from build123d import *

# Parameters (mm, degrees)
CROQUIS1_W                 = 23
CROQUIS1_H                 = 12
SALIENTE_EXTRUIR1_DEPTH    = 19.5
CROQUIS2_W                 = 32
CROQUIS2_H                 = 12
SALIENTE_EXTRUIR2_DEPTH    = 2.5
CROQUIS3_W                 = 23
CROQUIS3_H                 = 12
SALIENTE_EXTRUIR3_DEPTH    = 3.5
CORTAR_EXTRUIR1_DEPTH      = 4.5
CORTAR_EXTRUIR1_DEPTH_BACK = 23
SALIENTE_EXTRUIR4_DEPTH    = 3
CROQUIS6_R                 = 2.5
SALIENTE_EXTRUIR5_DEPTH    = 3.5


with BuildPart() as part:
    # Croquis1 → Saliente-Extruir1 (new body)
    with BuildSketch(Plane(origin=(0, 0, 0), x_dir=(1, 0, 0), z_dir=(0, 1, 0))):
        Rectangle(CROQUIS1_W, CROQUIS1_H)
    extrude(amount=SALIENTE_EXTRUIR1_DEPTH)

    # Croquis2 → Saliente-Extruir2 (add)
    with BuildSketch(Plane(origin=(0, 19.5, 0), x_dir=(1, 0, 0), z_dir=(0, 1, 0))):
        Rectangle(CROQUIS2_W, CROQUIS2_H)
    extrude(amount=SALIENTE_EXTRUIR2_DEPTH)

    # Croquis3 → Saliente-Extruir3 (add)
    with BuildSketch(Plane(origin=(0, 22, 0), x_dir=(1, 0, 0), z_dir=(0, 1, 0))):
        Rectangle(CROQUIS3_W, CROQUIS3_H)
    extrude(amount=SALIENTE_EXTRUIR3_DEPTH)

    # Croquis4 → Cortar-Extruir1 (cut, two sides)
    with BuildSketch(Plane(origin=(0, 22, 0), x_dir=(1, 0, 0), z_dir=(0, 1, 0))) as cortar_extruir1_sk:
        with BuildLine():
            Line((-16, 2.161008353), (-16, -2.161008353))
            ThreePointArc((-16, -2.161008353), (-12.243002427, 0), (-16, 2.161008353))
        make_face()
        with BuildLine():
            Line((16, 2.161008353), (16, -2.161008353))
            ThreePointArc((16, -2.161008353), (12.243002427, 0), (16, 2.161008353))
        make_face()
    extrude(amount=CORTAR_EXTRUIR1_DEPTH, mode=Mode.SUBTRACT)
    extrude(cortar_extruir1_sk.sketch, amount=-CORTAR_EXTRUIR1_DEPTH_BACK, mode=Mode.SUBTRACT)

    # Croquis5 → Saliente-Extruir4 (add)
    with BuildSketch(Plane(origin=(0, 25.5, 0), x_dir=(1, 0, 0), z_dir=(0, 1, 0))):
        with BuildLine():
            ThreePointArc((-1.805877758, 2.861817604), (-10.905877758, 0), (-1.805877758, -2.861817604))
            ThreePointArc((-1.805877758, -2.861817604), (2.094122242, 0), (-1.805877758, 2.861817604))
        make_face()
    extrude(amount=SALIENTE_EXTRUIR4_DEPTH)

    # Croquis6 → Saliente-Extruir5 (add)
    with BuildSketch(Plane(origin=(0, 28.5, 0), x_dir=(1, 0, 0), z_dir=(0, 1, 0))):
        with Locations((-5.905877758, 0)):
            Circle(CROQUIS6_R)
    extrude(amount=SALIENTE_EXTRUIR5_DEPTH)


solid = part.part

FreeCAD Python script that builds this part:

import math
import FreeCAD as App
import Part
import Sketcher
from FreeCAD import Vector


def add_polygon(sketch, points):
    """Adds a closed chain of lines whose ends are joined by coincident constraints."""
    first, n = sketch.GeometryCount, len(points)
    for a, b in zip(points, points[1:] + points[:1]):
        sketch.addGeometry(Part.LineSegment(App.Vector(*a, 0), App.Vector(*b, 0)), False)
    for i in range(n):
        sketch.addConstraint(Sketcher.Constraint("Coincident", first + i, 2, first + (i + 1) % n, 1))

doc = App.newDocument("Part")
body = doc.addObject("PartDesign::Body", "Body")

sketch1 = body.newObject("Sketcher::SketchObject", "Sketch")
sketch1.AttachmentSupport = (doc.getObject("XZ_Plane"), [""])
sketch1.MapMode = "FlatFace"
add_polygon(sketch1, [(-12, -6), (-12, 6), (12, 6), (12, -6)])
sketch1.addConstraint([
    Sketcher.Constraint("Vertical", 0),
    Sketcher.Constraint("Horizontal", 1),
    Sketcher.Constraint("Vertical", 2),
    Sketcher.Constraint("Horizontal", 3),
    Sketcher.Constraint("Symmetric", 0, 2, 2, 2, -1, 1),
    Sketcher.Constraint("DistanceX", 1, 1, 1, 2, 23.0),
    Sketcher.Constraint("DistanceY", 0, 1, 0, 2, 12.0),
])
pad1 = body.newObject("PartDesign::Pad", "Pad")
pad1.Profile = sketch1
pad1.Length = 19.5
pad1.Reversed = True

sketch2 = body.newObject("Sketcher::SketchObject", "Sketch001")
sketch2.AttachmentSupport = (doc.getObject("XZ_Plane"), [""])
sketch2.MapMode = "FlatFace"
sketch2.AttachmentOffset = App.Placement(Vector(0, 0, -19.5), App.Rotation())
add_polygon(sketch2, [(-16, -6), (-16, 6), (16, 6), (16, -6)])
sketch2.addConstraint([
    Sketcher.Constraint("Vertical", 0),
    Sketcher.Constraint("Horizontal", 1),
    Sketcher.Constraint("Vertical", 2),
    Sketcher.Constraint("Horizontal", 3),
    Sketcher.Constraint("Symmetric", 0, 2, 2, 2, -1, 1),
    Sketcher.Constraint("DistanceX", 1, 1, 1, 2, 32.0),
    Sketcher.Constraint("DistanceY", 0, 1, 0, 2, 12.0),
])
pad2 = body.newObject("PartDesign::Pad", "Pad001")
pad2.Profile = sketch2
pad2.Length = 2.5
pad2.Reversed = True

sketch3 = body.newObject("Sketcher::SketchObject", "Sketch002")
sketch3.AttachmentSupport = (doc.getObject("XZ_Plane"), [""])
sketch3.MapMode = "FlatFace"
sketch3.AttachmentOffset = App.Placement(Vector(0, 0, -22), App.Rotation())
add_polygon(sketch3, [(-12, -6), (-12, 6), (12, 6), (12, -6)])
sketch3.addConstraint([
    Sketcher.Constraint("Vertical", 0),
    Sketcher.Constraint("Horizontal", 1),
    Sketcher.Constraint("Vertical", 2),
    Sketcher.Constraint("Horizontal", 3),
    Sketcher.Constraint("Symmetric", 0, 2, 2, 2, -1, 1),
    Sketcher.Constraint("DistanceX", 1, 1, 1, 2, 23.0),
    Sketcher.Constraint("DistanceY", 0, 1, 0, 2, 12.0),
])
pad3 = body.newObject("PartDesign::Pad", "Pad002")
pad3.Profile = sketch3
pad3.Length = 3.5
pad3.Reversed = True

sketch4 = body.newObject("Sketcher::SketchObject", "Sketch003")
sketch4.AttachmentSupport = (doc.getObject("XZ_Plane"), [""])
sketch4.MapMode = "FlatFace"
sketch4.AttachmentOffset = App.Placement(Vector(0, 0, -22), App.Rotation())
sketch4.addGeometry([
    Part.LineSegment(Vector(-16, -2.2, 0), Vector(-16, 2.2, 0)),
    Part.ArcOfCircle(Part.Circle(Vector(-14.7, 0, 0), Vector(0, 0, 1), 2.5), math.radians(-120), math.radians(120)),
    Part.LineSegment(Vector(16, 2.2, 0), Vector(16, -2.2, 0)),
    Part.ArcOfCircle(Part.Circle(Vector(14.7, 0, 0), Vector(0, 0, 1), 2.5), math.radians(60), math.radians(300)),
], False)
sketch4.addConstraint([
    Sketcher.Constraint("Coincident", 0, 1, 1, 1),
    Sketcher.Constraint("Coincident", 1, 2, 0, 2),
    Sketcher.Constraint("Coincident", 2, 1, 3, 1),
    Sketcher.Constraint("Coincident", 3, 2, 2, 2),
    Sketcher.Constraint("Vertical", 0),
    Sketcher.Constraint("Vertical", 2),
    Sketcher.Constraint("Equal", 1, 3),
    Sketcher.Constraint("Symmetric", 1, 3, 3, 3, -1, 1),
    Sketcher.Constraint("Symmetric", 1, 2, 2, 1, -2),
    Sketcher.Constraint("Radius", 1, 2.5),
    Sketcher.Constraint("DistanceX", 0, 1, -1, 1, 16.0),
    Sketcher.Constraint("DistanceY", 0, 1, 0, 2, 4.322017),
])
pocket1 = body.newObject("PartDesign::Pocket", "Pocket")
pocket1.Profile = sketch4
pocket1.Type = "ThroughAll"
pocket1.Midplane = True

sketch5 = body.newObject("Sketcher::SketchObject", "Sketch004")
sketch5.AttachmentSupport = (doc.getObject("XZ_Plane"), [""])
sketch5.MapMode = "FlatFace"
sketch5.AttachmentOffset = App.Placement(Vector(0, 0, -25.5), App.Rotation())
sketch5.addGeometry([
    Part.ArcOfCircle(Part.Circle(Vector(-5.9, 0, 0), Vector(0, 0, 1), 5), math.radians(35), math.radians(325)),
    Part.ArcOfCircle(Part.Circle(Vector(-0.9, 0, 0), Vector(0, 0, 1), 3), math.radians(-107), math.radians(107)),
], False)
sketch5.addConstraint([
    Sketcher.Constraint("Coincident", 0, 1, 1, 2),
    Sketcher.Constraint("Coincident", 1, 1, 0, 2),
    Sketcher.Constraint("Symmetric", 0, 1, 1, 1, -1),
    Sketcher.Constraint("Radius", 0, 5.0),
    Sketcher.Constraint("Radius", 1, 3.0),
    Sketcher.Constraint("DistanceX", 0, 3, 1, 3, 5.0),
    Sketcher.Constraint("DistanceX", 0, 3, -1, 1, 5.905878),
])
pad4 = body.newObject("PartDesign::Pad", "Pad003")
pad4.Profile = sketch5
pad4.Length = 3
pad4.Reversed = True

sketch6 = body.newObject("Sketcher::SketchObject", "Sketch005")
sketch6.AttachmentSupport = (doc.getObject("XZ_Plane"), [""])
sketch6.MapMode = "FlatFace"
sketch6.AttachmentOffset = App.Placement(Vector(0, 0, -28.5), App.Rotation())
sketch6.addGeometry(Part.Circle(Vector(-5.9, 0, 0), Vector(0, 0, 1), 2.5), False)
sketch6.addConstraint([
    Sketcher.Constraint("PointOnObject", 0, 3, -1),
    Sketcher.Constraint("Diameter", 0, 5.0),
    Sketcher.Constraint("DistanceX", 0, 3, -1, 1, 5.905878),
])
pad5 = body.newObject("PartDesign::Pad", "Pad004")
pad5.Profile = sketch6
pad5.Length = 3.5
pad5.Reversed = True

doc.recompute()
